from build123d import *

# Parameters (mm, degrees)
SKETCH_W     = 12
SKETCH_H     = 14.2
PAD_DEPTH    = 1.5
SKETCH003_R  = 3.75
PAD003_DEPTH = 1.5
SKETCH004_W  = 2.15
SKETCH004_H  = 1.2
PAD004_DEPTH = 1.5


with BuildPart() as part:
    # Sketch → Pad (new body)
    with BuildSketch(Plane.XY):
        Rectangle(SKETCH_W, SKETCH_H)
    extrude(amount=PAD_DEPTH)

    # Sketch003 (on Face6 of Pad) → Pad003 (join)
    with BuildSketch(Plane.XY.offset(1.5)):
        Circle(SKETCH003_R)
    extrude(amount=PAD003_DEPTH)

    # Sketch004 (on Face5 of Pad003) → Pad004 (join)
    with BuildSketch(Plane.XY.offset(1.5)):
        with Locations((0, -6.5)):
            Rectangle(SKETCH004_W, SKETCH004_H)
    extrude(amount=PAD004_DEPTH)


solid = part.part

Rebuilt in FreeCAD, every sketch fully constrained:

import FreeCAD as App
import Part
import Sketcher
Q = App.Units.Quantity


def add_polygon(sketch, points):
    """Adds a closed chain of lines whose ends are joined by coincident constraints."""
    first, n = sketch.GeometryCount, len(points)
    for a, b in zip(points, points[1:] + points[:1]):
        sketch.addGeometry(Part.LineSegment(App.Vector(*a, 0), App.Vector(*b, 0)), False)
    for i in range(n):
        sketch.addConstraint(Sketcher.Constraint("Coincident", first + i, 2, first + (i + 1) % n, 1))

doc = App.newDocument("Part")
params = doc.addObject("Spreadsheet::Sheet", "Params")
for row, (alias, value) in enumerate([
    ("sketch1_width", "12 mm"),
    ("sketch1_height", "14.2 mm"),
    ("pad1_length", "1.5 mm"),
    ("sketch2_diameter", "7.5 mm"),
    ("pad2_length", "1.5 mm"),
    ("sketch3_height", "1.2 mm"),
    ("sketch3_width", "2.15 mm"),
    ("pad3_length", "1.5 mm"),
], start=1):
    params.set(f"A{row}", alias)
    params.set(f"B{row}", "=" + value)
    params.setAlias(f"B{row}", alias)

body = doc.addObject("PartDesign::Body", "Body")

# Sketch on XY plane
sketch1 = body.newObject("Sketcher::SketchObject", "Sketch")
sketch1.AttachmentSupport = (doc.getObject("XY_Plane"), [""])
sketch1.MapMode = "FlatFace"
add_polygon(sketch1, [(-6, 7), (-6, -7), (6, -7), (6, 7)])  # lines 0-3
sketch1.addConstraint([
    Sketcher.Constraint("Vertical", 0),
    Sketcher.Constraint("Horizontal", 1),
    Sketcher.Constraint("Vertical", 2),
    Sketcher.Constraint("Horizontal", 3),
    Sketcher.Constraint("Symmetric", 0, 2, 2, 2, -1, 1),
    Sketcher.Constraint("DistanceX", 1, 1, 1, 2, Q("12 mm")),
    Sketcher.Constraint("DistanceY", 0, 2, 0, 1, Q("14.2 mm")),
])
sketch1.setExpression("Constraints[9]", "Params.sketch1_width")
sketch1.setExpression("Constraints[10]", "Params.sketch1_height")
pad1 = body.newObject("PartDesign::Pad", "Pad")
pad1.Profile = sketch1
pad1.setExpression("Length", "Params.pad1_length")

# Sketch on XY plane
sketch2 = body.newObject("Sketcher::SketchObject", "Sketch001")
sketch2.AttachmentSupport = (doc.getObject("XY_Plane"), [""])
sketch2.MapMode = "FlatFace"
sketch2.AttachmentOffset = App.Placement(App.Vector(0, 0, 1.5), App.Rotation())
sketch2.addGeometry(Part.Circle(App.Vector(0, 0, 0), App.Vector(0, 0, 1), 3.8), False)
sketch2.addConstraint([
    Sketcher.Constraint("Coincident", 0, 3, -1, 1),
    Sketcher.Constraint("Diameter", 0, Q("7.5 mm")),
])
sketch2.setExpression("Constraints[1]", "Params.sketch2_diameter")
pad2 = body.newObject("PartDesign::Pad", "Pad001")
pad2.Profile = sketch2
pad2.setExpression("Length", "Params.pad2_length")

# Sketch on XY plane
sketch3 = body.newObject("Sketcher::SketchObject", "Sketch002")
sketch3.AttachmentSupport = (doc.getObject("XY_Plane"), [""])
sketch3.MapMode = "FlatFace"
sketch3.AttachmentOffset = App.Placement(App.Vector(0, 0, 1.5), App.Rotation())
add_polygon(sketch3, [(-1.1, -5.9), (-1.1, -7.1), (1.1, -7.1), (1.1, -5.9)])  # lines 0-3
sketch3.addConstraint([
    Sketcher.Constraint("Vertical", 0),
    Sketcher.Constraint("Horizontal", 1),
    Sketcher.Constraint("Vertical", 2),
    Sketcher.Constraint("Horizontal", 3),
    Sketcher.Constraint("DistanceY", 0, 2, 0, 1, Q("1.2 mm")),
    Sketcher.Constraint("DistanceX", 1, 1, 1, 2, Q("2.15 mm")),
    Sketcher.Constraint("DistanceY", 0, 2, -1, 1, Q("7.1 mm")),
    Sketcher.Constraint("DistanceX", 0, 2, -1, 1, Q("1.075 mm")),
])
sketch3.setExpression("Constraints[8]", "Params.sketch3_height")
sketch3.setExpression("Constraints[9]", "Params.sketch3_width")
pad3 = body.newObject("PartDesign::Pad", "Pad002")
pad3.Profile = sketch3
pad3.setExpression("Length", "Params.pad3_length")

doc.recompute()
